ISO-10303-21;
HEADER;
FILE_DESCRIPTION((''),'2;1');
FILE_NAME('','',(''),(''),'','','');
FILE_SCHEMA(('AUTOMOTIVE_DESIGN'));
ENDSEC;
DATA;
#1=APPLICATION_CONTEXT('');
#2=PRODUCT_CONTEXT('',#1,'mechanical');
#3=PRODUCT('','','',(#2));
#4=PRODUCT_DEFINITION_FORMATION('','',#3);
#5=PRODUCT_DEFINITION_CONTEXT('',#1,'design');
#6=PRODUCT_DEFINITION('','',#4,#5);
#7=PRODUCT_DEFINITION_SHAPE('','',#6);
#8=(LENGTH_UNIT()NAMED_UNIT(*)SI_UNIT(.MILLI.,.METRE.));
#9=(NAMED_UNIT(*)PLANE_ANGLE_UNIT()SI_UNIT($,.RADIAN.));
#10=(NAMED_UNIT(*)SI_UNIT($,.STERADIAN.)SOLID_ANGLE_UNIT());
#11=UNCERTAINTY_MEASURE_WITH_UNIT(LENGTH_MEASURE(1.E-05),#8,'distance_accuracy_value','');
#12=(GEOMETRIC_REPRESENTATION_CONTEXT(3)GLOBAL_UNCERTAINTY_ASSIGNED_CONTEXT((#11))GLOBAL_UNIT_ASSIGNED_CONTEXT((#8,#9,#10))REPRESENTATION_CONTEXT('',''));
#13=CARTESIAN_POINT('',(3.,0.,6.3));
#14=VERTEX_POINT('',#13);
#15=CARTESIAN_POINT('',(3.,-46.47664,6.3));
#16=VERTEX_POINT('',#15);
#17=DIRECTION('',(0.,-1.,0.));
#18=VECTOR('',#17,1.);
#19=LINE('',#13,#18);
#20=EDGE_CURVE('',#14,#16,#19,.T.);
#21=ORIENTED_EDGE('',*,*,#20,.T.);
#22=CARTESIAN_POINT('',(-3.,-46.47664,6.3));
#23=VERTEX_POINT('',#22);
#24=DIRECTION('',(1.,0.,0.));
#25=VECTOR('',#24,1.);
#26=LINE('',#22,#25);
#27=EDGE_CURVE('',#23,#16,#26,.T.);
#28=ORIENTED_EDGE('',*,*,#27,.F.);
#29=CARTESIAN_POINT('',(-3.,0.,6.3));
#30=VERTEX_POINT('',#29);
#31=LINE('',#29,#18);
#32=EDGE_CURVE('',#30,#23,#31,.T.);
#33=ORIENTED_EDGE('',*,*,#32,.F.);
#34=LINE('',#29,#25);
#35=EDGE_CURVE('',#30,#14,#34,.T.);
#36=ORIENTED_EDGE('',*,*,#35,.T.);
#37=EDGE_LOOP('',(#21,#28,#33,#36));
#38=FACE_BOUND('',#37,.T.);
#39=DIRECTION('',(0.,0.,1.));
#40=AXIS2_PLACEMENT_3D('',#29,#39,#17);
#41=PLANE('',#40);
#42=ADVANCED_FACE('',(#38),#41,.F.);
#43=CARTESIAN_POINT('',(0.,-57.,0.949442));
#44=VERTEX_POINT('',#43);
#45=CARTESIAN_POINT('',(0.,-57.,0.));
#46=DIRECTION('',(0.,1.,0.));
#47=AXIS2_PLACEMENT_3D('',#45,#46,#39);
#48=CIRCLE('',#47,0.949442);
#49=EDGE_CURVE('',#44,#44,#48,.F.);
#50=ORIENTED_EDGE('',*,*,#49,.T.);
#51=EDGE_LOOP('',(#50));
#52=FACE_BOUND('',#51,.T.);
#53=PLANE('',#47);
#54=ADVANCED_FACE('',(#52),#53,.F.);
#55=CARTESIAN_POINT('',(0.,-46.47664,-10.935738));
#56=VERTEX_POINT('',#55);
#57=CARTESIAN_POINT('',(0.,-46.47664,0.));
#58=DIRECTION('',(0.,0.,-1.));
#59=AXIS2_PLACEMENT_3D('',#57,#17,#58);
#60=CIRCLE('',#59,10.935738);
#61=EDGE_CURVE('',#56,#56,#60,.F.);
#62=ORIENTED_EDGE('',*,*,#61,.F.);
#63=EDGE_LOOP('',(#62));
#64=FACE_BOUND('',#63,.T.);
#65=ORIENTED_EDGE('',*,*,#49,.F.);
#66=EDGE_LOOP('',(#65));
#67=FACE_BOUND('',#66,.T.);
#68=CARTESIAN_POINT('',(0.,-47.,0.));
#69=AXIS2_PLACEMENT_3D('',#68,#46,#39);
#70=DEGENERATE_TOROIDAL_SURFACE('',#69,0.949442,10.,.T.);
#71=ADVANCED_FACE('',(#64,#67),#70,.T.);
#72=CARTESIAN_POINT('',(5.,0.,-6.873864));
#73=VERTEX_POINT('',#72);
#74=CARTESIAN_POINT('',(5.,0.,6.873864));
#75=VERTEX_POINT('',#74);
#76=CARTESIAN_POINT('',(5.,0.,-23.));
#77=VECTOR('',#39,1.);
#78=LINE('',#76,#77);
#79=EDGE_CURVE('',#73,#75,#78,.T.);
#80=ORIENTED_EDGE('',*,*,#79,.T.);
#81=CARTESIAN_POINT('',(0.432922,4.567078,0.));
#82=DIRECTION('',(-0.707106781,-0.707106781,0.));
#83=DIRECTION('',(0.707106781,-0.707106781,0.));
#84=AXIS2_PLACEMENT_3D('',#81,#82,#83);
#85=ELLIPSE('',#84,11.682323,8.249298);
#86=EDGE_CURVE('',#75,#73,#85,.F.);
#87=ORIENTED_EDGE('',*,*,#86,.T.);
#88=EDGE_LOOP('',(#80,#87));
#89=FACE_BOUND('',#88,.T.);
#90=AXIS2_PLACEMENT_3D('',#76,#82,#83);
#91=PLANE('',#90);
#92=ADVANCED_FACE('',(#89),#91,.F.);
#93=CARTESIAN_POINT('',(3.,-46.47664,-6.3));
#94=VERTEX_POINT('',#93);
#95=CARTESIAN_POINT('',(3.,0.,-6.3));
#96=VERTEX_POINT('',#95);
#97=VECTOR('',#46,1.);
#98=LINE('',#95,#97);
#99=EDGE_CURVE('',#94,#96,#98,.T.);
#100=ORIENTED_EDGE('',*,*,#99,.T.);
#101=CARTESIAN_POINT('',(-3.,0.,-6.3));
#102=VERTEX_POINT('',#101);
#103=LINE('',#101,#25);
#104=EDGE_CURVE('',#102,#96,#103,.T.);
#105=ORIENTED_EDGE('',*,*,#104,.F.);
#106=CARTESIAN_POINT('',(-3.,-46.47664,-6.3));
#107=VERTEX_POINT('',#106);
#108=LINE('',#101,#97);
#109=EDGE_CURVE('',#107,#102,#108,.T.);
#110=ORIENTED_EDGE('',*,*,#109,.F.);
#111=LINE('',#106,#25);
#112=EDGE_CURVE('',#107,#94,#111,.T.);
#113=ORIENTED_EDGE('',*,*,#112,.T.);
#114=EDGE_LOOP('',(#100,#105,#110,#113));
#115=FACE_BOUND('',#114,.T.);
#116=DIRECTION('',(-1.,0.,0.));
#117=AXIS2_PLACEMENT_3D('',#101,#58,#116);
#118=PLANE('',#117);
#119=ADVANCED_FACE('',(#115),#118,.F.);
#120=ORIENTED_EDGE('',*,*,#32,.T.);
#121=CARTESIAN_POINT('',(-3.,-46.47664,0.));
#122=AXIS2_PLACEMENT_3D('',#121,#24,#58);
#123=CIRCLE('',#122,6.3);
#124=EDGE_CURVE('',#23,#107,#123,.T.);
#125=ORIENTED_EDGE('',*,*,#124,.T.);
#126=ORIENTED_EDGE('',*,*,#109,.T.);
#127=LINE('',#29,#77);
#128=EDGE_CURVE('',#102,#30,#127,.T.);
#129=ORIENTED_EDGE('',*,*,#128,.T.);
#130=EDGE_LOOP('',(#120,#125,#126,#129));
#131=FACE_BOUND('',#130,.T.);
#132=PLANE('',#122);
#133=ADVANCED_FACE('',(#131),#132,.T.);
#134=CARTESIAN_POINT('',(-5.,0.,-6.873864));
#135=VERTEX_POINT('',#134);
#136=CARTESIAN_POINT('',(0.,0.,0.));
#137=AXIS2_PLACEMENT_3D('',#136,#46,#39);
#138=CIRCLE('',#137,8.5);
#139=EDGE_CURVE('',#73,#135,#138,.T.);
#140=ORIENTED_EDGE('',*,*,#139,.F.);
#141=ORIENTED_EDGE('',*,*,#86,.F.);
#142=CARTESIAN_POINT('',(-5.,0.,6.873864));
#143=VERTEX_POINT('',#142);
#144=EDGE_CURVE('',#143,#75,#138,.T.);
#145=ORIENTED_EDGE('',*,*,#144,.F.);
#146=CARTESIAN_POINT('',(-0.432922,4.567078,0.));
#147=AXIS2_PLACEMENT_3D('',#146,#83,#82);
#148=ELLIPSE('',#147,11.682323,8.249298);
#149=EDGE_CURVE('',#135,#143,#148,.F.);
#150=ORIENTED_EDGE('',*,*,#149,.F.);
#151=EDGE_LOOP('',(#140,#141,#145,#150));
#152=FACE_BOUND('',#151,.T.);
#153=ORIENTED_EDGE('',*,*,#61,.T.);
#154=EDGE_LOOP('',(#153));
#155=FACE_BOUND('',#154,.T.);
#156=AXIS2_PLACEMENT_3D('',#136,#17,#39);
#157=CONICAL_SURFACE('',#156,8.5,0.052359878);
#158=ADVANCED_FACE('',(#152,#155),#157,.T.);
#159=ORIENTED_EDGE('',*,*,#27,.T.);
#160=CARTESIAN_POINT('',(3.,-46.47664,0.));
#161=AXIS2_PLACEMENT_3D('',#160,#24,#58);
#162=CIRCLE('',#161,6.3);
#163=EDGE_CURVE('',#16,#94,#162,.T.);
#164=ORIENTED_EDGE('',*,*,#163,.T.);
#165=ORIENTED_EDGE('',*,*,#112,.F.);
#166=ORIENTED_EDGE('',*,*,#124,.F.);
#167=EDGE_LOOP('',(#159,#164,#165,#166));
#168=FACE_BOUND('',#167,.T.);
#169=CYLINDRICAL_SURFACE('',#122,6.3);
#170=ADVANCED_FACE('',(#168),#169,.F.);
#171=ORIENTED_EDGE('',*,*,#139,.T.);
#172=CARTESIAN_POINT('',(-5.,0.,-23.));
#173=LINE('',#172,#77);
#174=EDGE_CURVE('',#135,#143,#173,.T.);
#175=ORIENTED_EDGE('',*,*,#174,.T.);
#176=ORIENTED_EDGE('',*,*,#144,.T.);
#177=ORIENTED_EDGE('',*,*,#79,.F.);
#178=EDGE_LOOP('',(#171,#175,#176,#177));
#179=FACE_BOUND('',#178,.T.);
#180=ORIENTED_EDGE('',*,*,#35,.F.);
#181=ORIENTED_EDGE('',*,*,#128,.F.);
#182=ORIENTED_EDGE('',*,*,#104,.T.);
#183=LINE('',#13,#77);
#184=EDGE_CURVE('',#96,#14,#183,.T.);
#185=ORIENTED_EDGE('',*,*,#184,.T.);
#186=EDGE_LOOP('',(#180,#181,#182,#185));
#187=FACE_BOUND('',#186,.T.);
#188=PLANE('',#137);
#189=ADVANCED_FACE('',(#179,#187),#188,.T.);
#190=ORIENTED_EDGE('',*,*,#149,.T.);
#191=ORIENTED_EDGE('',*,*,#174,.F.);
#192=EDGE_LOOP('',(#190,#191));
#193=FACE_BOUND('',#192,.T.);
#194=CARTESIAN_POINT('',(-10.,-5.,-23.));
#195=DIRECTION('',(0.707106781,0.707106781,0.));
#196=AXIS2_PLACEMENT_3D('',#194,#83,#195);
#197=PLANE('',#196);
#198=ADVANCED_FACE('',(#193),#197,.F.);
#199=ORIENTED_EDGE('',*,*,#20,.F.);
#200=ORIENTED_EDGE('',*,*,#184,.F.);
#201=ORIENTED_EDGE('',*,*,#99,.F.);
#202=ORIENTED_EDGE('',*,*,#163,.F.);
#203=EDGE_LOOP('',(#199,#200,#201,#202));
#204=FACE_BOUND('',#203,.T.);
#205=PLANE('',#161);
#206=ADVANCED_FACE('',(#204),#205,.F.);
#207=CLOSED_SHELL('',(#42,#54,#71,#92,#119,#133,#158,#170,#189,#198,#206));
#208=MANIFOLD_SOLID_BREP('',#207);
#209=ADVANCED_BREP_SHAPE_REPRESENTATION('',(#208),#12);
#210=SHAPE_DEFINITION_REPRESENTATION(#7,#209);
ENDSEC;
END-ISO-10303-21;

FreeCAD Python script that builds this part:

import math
import FreeCAD as App
import Part
import Sketcher


def edges_at(feature, points):
    """Names of the edges that pass closest to the given points."""
    edges = feature.Shape.Edges
    near = lambda p: min(range(len(edges)), key=lambda i: edges[i].distToShape(Part.Vertex(*p))[0])
    return sorted({f"Edge{near(p) + 1}" for p in points})

doc = App.newDocument("Part")
body = doc.addObject("PartDesign::Body", "Body")

# Sketch on XZ plane
sketch1 = body.newObject("Sketcher::SketchObject", "Sketch")
sketch1.AttachmentSupport = (doc.getObject("XZ_Plane"), [""])
sketch1.MapMode = "FlatFace"
sketch1.addGeometry(Part.Circle(App.Vector(0, 0, 0), App.Vector(0, 0, 1), 8), False)
sketch1.addConstraint([
    Sketcher.Constraint("Coincident", 0, 3, -1, 1),
    Sketcher.Constraint("Diameter", 0, 17.0),
])
pad1 = body.newObject("PartDesign::Pad", "Pad")
pad1.Profile = sketch1
pad1.Length = 57
pad1.TaperAngle = 3
doc.recompute()

fillet = body.newObject("PartDesign::Fillet", "Fillet")
fillet.Base = (pad1, edges_at(pad1, [(-11.487, -57, 0)]))
fillet.Radius = 10

# Sketch on YZ plane
sketch2 = body.newObject("Sketcher::SketchObject", "Sketch001")
sketch2.AttachmentSupport = (doc.getObject("YZ_Plane"), [""])
sketch2.MapMode = "FlatFace"
sketch2.addGeometry([
    Part.LineSegment(App.Vector(0, -6, 0), App.Vector(0, 6, 0)),
    Part.LineSegment(App.Vector(0, 6, 0), App.Vector(-46, 6, 0)),
    Part.ArcOfCircle(Part.Circle(App.Vector(-46, 0, 0), App.Vector(0, 0, 1), 6), math.radians(90), math.radians(270)),
    Part.LineSegment(App.Vector(-46, -6, 0), App.Vector(0, -6, 0)),
], False)
sketch2.addConstraint([
    Sketcher.Constraint("Coincident", 0, 2, 1, 1),
    Sketcher.Constraint("Tangent", 1, 2, 2, 1),
    Sketcher.Constraint("Tangent", 2, 2, 3, 1),
    Sketcher.Constraint("Coincident", 3, 2, 0, 1),
    Sketcher.Constraint("Vertical", 0),
    Sketcher.Constraint("Horizontal", 1),
    Sketcher.Constraint("Horizontal", 3),
    Sketcher.Constraint("Symmetric", 0, 2, 3, 2, -1, 1),
    Sketcher.Constraint("Radius", 2, 6.3),
    Sketcher.Constraint("DistanceX", 1, 2, 1, 1, 46.47664),
])
pocket1 = body.newObject("PartDesign::Pocket", "Pocket")
pocket1.Profile = sketch2
pocket1.Length = 6
pocket1.Midplane = True

# Sketch on XY plane
sketch3 = body.newObject("Sketcher::SketchObject", "Sketch002")
sketch3.AttachmentSupport = (doc.getObject("XY_Plane"), [""])
sketch3.MapMode = "FlatFace"
sketch3.addGeometry([
    Part.LineSegment(App.Vector(-5, 0, 0), App.Vector(5, 0, 0)),  # 0
    Part.LineSegment(App.Vector(5, 0, 0), App.Vector(10, -5, 0)),  # 1
    Part.LineSegment(App.Vector(10, -5, 0), App.Vector(10, 5, 0)),  # 2
    Part.LineSegment(App.Vector(10, 5, 0), App.Vector(-10, 5, 0)),  # 3
    Part.LineSegment(App.Vector(-10, 5, 0), App.Vector(-10, -5, 0)),  # 4
    Part.LineSegment(App.Vector(-10, -5, 0), App.Vector(-5, 0, 0)),  # 5
], False)
sketch3.addConstraint([
    Sketcher.Constraint("Coincident", 0, 2, 1, 1),
    Sketcher.Constraint("Coincident", 1, 2, 2, 1),
    Sketcher.Constraint("Coincident", 2, 2, 3, 1),
    Sketcher.Constraint("Coincident", 3, 2, 4, 1),
    Sketcher.Constraint("Coincident", 4, 2, 5, 1),
    Sketcher.Constraint("Coincident", 5, 2, 0, 1),
    Sketcher.Constraint("Horizontal", 0),
    Sketcher.Constraint("Vertical", 2),
    Sketcher.Constraint("Horizontal", 3),
    Sketcher.Constraint("Vertical", 4),
    Sketcher.Constraint("Symmetric", 1, 2, 3, 2, -1, 1),
    Sketcher.Constraint("Symmetric", 0, 2, 5, 2, -1, 1),
    Sketcher.Constraint("Perpendicular", 1, 5),
    Sketcher.Constraint("Horizontal", 1, 2, 4, 2),
    Sketcher.Constraint("Equal", 0, 2),
    Sketcher.Constraint("DistanceX", 0, 1, 0, 2, 10.0),
])
pocket2 = body.newObject("PartDesign::Pocket", "Pocket001")
pocket2.Profile = sketch3
pocket2.Length = 46
pocket2.Midplane = True

doc.recompute()
